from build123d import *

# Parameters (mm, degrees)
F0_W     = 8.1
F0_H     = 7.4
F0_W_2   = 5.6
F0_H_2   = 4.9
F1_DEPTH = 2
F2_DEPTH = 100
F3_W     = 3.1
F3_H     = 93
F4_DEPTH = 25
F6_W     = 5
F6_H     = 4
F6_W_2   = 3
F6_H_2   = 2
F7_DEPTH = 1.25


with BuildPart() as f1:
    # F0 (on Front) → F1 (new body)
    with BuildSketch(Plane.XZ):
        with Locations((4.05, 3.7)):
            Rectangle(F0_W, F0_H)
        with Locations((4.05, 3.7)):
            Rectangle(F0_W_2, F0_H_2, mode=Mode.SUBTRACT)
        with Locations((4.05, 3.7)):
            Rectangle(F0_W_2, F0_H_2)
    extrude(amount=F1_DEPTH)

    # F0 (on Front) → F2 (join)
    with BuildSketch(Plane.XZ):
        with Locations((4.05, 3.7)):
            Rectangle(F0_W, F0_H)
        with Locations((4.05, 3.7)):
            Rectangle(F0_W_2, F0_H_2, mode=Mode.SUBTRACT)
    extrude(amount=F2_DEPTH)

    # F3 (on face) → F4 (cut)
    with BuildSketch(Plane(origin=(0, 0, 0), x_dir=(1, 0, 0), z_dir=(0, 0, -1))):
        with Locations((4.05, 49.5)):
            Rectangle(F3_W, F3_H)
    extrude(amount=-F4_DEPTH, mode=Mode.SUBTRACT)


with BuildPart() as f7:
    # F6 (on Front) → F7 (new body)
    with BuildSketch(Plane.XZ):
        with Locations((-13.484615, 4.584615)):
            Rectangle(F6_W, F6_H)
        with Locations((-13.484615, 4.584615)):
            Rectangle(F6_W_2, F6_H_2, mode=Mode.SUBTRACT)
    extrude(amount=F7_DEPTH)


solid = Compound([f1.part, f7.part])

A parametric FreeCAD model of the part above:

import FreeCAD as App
import Part
import Sketcher
from FreeCAD import Vector


def add_polygon(sketch, points):
    """Adds a closed chain of lines whose ends are joined by coincident constraints."""
    first, n = sketch.GeometryCount, len(points)
    for a, b in zip(points, points[1:] + points[:1]):
        sketch.addGeometry(Part.LineSegment(App.Vector(*a, 0), App.Vector(*b, 0)), False)
    for i in range(n):
        sketch.addConstraint(Sketcher.Constraint("Coincident", first + i, 2, first + (i + 1) % n, 1))

doc = App.newDocument("Part")
body = doc.addObject("PartDesign::Body", "Body")

sketch1 = body.newObject("Sketcher::SketchObject", "Sketch")
sketch1.AttachmentSupport = (doc.getObject("XZ_Plane"), [""])
sketch1.MapMode = "FlatFace"
add_polygon(sketch1, [(0, 7), (0, 0), (8, 0), (8, 7)])
sketch1.addConstraint([
    Sketcher.Constraint("Vertical", 0),
    Sketcher.Constraint("Horizontal", 1),
    Sketcher.Constraint("Vertical", 2),
    Sketcher.Constraint("Horizontal", 3),
    Sketcher.Constraint("Coincident", 0, 2, -1, 1),
    Sketcher.Constraint("DistanceX", 1, 1, 1, 2, 8.1),
    Sketcher.Constraint("DistanceY", 0, 2, 0, 1, 7.4),
])
pad1 = body.newObject("PartDesign::Pad", "Pad")
pad1.Profile = sketch1
pad1.Length = 2

sketch2 = body.newObject("Sketcher::SketchObject", "Sketch001")
sketch2.AttachmentSupport = (doc.getObject("XZ_Plane"), [""])
sketch2.MapMode = "FlatFace"
add_polygon(sketch2, [(0, 7.4), (0, 0), (8.1, 0), (8.1, 7.4)])
add_polygon(sketch2, [(6.8, 1.2), (1.2, 1.2), (1.2, 6.2), (6.8, 6.2)])
sketch2.addConstraint([
    Sketcher.Constraint("Vertical", 0),
    Sketcher.Constraint("Horizontal", 1),
    Sketcher.Constraint("Vertical", 2),
    Sketcher.Constraint("Horizontal", 3),
    Sketcher.Constraint("Horizontal", 4),
    Sketcher.Constraint("Vertical", 5),
    Sketcher.Constraint("Horizontal", 6),
    Sketcher.Constraint("Vertical", 7),
    Sketcher.Constraint("Coincident", 0, 2, -1, 1),
    Sketcher.Constraint("DistanceX", 1, 1, 1, 2, 8.1),
    Sketcher.Constraint("DistanceX", 4, 2, 4, 1, 5.6),
    Sketcher.Constraint("DistanceY", 0, 2, 0, 1, 7.4),
    Sketcher.Constraint("DistanceY", 5, 1, 5, 2, 4.9),
    Sketcher.Constraint("DistanceX", -1, 1, 4, 2, 1.25),
    Sketcher.Constraint("DistanceY", -1, 1, 4, 2, 1.25),
])
pad2 = body.newObject("PartDesign::Pad", "Pad001")
pad2.Profile = sketch2
pad2.Length = 100

sketch3 = body.newObject("Sketcher::SketchObject", "Sketch002")
sketch3.AttachmentSupport = (doc.getObject("XY_Plane"), [""])
sketch3.MapMode = "FlatFace"
add_polygon(sketch3, [(2.5, -96), (2.5, -3), (5.6, -3), (5.6, -96)])
sketch3.addConstraint([
    Sketcher.Constraint("Vertical", 0),
    Sketcher.Constraint("Horizontal", 1),
    Sketcher.Constraint("Vertical", 2),
    Sketcher.Constraint("Horizontal", 3),
    Sketcher.Constraint("DistanceY", 0, 1, 0, 2, 93.0),
    Sketcher.Constraint("DistanceX", 1, 1, 1, 2, 3.1),
    Sketcher.Constraint("DistanceY", 0, 2, -1, 1, 3.0),
    Sketcher.Constraint("DistanceX", -1, 1, 0, 2, 2.5),
])
pocket1 = body.newObject("PartDesign::Pocket", "Pocket")
pocket1.Profile = sketch3
pocket1.Length = 25
pocket1.Reversed = True
body2 = doc.addObject("PartDesign::Body", "Body001")

sketch4 = body2.newObject("Sketcher::SketchObject", "Sketch003")
sketch4.AttachmentSupport = (doc.getObject("XZ_Plane001"), [""])
sketch4.MapMode = "FlatFace"
add_polygon(sketch4, [(-16, 6.6), (-16, 2.6), (-11, 2.6), (-11, 6.6)])
add_polygon(sketch4, [(-12, 3.6), (-15, 3.6), (-15, 5.6), (-12, 5.6)])
sketch4.addConstraint([
    Sketcher.Constraint("Vertical", 0),
    Sketcher.Constraint("Horizontal", 1),
    Sketcher.Constraint("Vertical", 2),
    Sketcher.Constraint("Horizontal", 3),
    Sketcher.Constraint("Horizontal", 4),
    Sketcher.Constraint("Vertical", 5),
    Sketcher.Constraint("Horizontal", 6),
    Sketcher.Constraint("Vertical", 7),
    Sketcher.Constraint("DistanceX", 1, 1, 1, 2, 5.0),
    Sketcher.Constraint("DistanceX", 4, 2, 4, 1, 3.0),
    Sketcher.Constraint("DistanceY", 0, 2, 0, 1, 4.0),
    Sketcher.Constraint("DistanceY", 5, 1, 5, 2, 2.0),
    Sketcher.Constraint("DistanceX", 0, 2, 4, 2, 1.0),
    Sketcher.Constraint("DistanceY", 0, 2, 4, 2, 1.0),
    Sketcher.Constraint("DistanceX", 0, 2, -1, 1, 15.984615),
    Sketcher.Constraint("DistanceY", -1, 1, 0, 2, 2.584615),
])
pad3 = body2.newObject("PartDesign::Pad", "Pad002")
pad3.Profile = sketch4
pad3.Length = 1.25

doc.recompute()
